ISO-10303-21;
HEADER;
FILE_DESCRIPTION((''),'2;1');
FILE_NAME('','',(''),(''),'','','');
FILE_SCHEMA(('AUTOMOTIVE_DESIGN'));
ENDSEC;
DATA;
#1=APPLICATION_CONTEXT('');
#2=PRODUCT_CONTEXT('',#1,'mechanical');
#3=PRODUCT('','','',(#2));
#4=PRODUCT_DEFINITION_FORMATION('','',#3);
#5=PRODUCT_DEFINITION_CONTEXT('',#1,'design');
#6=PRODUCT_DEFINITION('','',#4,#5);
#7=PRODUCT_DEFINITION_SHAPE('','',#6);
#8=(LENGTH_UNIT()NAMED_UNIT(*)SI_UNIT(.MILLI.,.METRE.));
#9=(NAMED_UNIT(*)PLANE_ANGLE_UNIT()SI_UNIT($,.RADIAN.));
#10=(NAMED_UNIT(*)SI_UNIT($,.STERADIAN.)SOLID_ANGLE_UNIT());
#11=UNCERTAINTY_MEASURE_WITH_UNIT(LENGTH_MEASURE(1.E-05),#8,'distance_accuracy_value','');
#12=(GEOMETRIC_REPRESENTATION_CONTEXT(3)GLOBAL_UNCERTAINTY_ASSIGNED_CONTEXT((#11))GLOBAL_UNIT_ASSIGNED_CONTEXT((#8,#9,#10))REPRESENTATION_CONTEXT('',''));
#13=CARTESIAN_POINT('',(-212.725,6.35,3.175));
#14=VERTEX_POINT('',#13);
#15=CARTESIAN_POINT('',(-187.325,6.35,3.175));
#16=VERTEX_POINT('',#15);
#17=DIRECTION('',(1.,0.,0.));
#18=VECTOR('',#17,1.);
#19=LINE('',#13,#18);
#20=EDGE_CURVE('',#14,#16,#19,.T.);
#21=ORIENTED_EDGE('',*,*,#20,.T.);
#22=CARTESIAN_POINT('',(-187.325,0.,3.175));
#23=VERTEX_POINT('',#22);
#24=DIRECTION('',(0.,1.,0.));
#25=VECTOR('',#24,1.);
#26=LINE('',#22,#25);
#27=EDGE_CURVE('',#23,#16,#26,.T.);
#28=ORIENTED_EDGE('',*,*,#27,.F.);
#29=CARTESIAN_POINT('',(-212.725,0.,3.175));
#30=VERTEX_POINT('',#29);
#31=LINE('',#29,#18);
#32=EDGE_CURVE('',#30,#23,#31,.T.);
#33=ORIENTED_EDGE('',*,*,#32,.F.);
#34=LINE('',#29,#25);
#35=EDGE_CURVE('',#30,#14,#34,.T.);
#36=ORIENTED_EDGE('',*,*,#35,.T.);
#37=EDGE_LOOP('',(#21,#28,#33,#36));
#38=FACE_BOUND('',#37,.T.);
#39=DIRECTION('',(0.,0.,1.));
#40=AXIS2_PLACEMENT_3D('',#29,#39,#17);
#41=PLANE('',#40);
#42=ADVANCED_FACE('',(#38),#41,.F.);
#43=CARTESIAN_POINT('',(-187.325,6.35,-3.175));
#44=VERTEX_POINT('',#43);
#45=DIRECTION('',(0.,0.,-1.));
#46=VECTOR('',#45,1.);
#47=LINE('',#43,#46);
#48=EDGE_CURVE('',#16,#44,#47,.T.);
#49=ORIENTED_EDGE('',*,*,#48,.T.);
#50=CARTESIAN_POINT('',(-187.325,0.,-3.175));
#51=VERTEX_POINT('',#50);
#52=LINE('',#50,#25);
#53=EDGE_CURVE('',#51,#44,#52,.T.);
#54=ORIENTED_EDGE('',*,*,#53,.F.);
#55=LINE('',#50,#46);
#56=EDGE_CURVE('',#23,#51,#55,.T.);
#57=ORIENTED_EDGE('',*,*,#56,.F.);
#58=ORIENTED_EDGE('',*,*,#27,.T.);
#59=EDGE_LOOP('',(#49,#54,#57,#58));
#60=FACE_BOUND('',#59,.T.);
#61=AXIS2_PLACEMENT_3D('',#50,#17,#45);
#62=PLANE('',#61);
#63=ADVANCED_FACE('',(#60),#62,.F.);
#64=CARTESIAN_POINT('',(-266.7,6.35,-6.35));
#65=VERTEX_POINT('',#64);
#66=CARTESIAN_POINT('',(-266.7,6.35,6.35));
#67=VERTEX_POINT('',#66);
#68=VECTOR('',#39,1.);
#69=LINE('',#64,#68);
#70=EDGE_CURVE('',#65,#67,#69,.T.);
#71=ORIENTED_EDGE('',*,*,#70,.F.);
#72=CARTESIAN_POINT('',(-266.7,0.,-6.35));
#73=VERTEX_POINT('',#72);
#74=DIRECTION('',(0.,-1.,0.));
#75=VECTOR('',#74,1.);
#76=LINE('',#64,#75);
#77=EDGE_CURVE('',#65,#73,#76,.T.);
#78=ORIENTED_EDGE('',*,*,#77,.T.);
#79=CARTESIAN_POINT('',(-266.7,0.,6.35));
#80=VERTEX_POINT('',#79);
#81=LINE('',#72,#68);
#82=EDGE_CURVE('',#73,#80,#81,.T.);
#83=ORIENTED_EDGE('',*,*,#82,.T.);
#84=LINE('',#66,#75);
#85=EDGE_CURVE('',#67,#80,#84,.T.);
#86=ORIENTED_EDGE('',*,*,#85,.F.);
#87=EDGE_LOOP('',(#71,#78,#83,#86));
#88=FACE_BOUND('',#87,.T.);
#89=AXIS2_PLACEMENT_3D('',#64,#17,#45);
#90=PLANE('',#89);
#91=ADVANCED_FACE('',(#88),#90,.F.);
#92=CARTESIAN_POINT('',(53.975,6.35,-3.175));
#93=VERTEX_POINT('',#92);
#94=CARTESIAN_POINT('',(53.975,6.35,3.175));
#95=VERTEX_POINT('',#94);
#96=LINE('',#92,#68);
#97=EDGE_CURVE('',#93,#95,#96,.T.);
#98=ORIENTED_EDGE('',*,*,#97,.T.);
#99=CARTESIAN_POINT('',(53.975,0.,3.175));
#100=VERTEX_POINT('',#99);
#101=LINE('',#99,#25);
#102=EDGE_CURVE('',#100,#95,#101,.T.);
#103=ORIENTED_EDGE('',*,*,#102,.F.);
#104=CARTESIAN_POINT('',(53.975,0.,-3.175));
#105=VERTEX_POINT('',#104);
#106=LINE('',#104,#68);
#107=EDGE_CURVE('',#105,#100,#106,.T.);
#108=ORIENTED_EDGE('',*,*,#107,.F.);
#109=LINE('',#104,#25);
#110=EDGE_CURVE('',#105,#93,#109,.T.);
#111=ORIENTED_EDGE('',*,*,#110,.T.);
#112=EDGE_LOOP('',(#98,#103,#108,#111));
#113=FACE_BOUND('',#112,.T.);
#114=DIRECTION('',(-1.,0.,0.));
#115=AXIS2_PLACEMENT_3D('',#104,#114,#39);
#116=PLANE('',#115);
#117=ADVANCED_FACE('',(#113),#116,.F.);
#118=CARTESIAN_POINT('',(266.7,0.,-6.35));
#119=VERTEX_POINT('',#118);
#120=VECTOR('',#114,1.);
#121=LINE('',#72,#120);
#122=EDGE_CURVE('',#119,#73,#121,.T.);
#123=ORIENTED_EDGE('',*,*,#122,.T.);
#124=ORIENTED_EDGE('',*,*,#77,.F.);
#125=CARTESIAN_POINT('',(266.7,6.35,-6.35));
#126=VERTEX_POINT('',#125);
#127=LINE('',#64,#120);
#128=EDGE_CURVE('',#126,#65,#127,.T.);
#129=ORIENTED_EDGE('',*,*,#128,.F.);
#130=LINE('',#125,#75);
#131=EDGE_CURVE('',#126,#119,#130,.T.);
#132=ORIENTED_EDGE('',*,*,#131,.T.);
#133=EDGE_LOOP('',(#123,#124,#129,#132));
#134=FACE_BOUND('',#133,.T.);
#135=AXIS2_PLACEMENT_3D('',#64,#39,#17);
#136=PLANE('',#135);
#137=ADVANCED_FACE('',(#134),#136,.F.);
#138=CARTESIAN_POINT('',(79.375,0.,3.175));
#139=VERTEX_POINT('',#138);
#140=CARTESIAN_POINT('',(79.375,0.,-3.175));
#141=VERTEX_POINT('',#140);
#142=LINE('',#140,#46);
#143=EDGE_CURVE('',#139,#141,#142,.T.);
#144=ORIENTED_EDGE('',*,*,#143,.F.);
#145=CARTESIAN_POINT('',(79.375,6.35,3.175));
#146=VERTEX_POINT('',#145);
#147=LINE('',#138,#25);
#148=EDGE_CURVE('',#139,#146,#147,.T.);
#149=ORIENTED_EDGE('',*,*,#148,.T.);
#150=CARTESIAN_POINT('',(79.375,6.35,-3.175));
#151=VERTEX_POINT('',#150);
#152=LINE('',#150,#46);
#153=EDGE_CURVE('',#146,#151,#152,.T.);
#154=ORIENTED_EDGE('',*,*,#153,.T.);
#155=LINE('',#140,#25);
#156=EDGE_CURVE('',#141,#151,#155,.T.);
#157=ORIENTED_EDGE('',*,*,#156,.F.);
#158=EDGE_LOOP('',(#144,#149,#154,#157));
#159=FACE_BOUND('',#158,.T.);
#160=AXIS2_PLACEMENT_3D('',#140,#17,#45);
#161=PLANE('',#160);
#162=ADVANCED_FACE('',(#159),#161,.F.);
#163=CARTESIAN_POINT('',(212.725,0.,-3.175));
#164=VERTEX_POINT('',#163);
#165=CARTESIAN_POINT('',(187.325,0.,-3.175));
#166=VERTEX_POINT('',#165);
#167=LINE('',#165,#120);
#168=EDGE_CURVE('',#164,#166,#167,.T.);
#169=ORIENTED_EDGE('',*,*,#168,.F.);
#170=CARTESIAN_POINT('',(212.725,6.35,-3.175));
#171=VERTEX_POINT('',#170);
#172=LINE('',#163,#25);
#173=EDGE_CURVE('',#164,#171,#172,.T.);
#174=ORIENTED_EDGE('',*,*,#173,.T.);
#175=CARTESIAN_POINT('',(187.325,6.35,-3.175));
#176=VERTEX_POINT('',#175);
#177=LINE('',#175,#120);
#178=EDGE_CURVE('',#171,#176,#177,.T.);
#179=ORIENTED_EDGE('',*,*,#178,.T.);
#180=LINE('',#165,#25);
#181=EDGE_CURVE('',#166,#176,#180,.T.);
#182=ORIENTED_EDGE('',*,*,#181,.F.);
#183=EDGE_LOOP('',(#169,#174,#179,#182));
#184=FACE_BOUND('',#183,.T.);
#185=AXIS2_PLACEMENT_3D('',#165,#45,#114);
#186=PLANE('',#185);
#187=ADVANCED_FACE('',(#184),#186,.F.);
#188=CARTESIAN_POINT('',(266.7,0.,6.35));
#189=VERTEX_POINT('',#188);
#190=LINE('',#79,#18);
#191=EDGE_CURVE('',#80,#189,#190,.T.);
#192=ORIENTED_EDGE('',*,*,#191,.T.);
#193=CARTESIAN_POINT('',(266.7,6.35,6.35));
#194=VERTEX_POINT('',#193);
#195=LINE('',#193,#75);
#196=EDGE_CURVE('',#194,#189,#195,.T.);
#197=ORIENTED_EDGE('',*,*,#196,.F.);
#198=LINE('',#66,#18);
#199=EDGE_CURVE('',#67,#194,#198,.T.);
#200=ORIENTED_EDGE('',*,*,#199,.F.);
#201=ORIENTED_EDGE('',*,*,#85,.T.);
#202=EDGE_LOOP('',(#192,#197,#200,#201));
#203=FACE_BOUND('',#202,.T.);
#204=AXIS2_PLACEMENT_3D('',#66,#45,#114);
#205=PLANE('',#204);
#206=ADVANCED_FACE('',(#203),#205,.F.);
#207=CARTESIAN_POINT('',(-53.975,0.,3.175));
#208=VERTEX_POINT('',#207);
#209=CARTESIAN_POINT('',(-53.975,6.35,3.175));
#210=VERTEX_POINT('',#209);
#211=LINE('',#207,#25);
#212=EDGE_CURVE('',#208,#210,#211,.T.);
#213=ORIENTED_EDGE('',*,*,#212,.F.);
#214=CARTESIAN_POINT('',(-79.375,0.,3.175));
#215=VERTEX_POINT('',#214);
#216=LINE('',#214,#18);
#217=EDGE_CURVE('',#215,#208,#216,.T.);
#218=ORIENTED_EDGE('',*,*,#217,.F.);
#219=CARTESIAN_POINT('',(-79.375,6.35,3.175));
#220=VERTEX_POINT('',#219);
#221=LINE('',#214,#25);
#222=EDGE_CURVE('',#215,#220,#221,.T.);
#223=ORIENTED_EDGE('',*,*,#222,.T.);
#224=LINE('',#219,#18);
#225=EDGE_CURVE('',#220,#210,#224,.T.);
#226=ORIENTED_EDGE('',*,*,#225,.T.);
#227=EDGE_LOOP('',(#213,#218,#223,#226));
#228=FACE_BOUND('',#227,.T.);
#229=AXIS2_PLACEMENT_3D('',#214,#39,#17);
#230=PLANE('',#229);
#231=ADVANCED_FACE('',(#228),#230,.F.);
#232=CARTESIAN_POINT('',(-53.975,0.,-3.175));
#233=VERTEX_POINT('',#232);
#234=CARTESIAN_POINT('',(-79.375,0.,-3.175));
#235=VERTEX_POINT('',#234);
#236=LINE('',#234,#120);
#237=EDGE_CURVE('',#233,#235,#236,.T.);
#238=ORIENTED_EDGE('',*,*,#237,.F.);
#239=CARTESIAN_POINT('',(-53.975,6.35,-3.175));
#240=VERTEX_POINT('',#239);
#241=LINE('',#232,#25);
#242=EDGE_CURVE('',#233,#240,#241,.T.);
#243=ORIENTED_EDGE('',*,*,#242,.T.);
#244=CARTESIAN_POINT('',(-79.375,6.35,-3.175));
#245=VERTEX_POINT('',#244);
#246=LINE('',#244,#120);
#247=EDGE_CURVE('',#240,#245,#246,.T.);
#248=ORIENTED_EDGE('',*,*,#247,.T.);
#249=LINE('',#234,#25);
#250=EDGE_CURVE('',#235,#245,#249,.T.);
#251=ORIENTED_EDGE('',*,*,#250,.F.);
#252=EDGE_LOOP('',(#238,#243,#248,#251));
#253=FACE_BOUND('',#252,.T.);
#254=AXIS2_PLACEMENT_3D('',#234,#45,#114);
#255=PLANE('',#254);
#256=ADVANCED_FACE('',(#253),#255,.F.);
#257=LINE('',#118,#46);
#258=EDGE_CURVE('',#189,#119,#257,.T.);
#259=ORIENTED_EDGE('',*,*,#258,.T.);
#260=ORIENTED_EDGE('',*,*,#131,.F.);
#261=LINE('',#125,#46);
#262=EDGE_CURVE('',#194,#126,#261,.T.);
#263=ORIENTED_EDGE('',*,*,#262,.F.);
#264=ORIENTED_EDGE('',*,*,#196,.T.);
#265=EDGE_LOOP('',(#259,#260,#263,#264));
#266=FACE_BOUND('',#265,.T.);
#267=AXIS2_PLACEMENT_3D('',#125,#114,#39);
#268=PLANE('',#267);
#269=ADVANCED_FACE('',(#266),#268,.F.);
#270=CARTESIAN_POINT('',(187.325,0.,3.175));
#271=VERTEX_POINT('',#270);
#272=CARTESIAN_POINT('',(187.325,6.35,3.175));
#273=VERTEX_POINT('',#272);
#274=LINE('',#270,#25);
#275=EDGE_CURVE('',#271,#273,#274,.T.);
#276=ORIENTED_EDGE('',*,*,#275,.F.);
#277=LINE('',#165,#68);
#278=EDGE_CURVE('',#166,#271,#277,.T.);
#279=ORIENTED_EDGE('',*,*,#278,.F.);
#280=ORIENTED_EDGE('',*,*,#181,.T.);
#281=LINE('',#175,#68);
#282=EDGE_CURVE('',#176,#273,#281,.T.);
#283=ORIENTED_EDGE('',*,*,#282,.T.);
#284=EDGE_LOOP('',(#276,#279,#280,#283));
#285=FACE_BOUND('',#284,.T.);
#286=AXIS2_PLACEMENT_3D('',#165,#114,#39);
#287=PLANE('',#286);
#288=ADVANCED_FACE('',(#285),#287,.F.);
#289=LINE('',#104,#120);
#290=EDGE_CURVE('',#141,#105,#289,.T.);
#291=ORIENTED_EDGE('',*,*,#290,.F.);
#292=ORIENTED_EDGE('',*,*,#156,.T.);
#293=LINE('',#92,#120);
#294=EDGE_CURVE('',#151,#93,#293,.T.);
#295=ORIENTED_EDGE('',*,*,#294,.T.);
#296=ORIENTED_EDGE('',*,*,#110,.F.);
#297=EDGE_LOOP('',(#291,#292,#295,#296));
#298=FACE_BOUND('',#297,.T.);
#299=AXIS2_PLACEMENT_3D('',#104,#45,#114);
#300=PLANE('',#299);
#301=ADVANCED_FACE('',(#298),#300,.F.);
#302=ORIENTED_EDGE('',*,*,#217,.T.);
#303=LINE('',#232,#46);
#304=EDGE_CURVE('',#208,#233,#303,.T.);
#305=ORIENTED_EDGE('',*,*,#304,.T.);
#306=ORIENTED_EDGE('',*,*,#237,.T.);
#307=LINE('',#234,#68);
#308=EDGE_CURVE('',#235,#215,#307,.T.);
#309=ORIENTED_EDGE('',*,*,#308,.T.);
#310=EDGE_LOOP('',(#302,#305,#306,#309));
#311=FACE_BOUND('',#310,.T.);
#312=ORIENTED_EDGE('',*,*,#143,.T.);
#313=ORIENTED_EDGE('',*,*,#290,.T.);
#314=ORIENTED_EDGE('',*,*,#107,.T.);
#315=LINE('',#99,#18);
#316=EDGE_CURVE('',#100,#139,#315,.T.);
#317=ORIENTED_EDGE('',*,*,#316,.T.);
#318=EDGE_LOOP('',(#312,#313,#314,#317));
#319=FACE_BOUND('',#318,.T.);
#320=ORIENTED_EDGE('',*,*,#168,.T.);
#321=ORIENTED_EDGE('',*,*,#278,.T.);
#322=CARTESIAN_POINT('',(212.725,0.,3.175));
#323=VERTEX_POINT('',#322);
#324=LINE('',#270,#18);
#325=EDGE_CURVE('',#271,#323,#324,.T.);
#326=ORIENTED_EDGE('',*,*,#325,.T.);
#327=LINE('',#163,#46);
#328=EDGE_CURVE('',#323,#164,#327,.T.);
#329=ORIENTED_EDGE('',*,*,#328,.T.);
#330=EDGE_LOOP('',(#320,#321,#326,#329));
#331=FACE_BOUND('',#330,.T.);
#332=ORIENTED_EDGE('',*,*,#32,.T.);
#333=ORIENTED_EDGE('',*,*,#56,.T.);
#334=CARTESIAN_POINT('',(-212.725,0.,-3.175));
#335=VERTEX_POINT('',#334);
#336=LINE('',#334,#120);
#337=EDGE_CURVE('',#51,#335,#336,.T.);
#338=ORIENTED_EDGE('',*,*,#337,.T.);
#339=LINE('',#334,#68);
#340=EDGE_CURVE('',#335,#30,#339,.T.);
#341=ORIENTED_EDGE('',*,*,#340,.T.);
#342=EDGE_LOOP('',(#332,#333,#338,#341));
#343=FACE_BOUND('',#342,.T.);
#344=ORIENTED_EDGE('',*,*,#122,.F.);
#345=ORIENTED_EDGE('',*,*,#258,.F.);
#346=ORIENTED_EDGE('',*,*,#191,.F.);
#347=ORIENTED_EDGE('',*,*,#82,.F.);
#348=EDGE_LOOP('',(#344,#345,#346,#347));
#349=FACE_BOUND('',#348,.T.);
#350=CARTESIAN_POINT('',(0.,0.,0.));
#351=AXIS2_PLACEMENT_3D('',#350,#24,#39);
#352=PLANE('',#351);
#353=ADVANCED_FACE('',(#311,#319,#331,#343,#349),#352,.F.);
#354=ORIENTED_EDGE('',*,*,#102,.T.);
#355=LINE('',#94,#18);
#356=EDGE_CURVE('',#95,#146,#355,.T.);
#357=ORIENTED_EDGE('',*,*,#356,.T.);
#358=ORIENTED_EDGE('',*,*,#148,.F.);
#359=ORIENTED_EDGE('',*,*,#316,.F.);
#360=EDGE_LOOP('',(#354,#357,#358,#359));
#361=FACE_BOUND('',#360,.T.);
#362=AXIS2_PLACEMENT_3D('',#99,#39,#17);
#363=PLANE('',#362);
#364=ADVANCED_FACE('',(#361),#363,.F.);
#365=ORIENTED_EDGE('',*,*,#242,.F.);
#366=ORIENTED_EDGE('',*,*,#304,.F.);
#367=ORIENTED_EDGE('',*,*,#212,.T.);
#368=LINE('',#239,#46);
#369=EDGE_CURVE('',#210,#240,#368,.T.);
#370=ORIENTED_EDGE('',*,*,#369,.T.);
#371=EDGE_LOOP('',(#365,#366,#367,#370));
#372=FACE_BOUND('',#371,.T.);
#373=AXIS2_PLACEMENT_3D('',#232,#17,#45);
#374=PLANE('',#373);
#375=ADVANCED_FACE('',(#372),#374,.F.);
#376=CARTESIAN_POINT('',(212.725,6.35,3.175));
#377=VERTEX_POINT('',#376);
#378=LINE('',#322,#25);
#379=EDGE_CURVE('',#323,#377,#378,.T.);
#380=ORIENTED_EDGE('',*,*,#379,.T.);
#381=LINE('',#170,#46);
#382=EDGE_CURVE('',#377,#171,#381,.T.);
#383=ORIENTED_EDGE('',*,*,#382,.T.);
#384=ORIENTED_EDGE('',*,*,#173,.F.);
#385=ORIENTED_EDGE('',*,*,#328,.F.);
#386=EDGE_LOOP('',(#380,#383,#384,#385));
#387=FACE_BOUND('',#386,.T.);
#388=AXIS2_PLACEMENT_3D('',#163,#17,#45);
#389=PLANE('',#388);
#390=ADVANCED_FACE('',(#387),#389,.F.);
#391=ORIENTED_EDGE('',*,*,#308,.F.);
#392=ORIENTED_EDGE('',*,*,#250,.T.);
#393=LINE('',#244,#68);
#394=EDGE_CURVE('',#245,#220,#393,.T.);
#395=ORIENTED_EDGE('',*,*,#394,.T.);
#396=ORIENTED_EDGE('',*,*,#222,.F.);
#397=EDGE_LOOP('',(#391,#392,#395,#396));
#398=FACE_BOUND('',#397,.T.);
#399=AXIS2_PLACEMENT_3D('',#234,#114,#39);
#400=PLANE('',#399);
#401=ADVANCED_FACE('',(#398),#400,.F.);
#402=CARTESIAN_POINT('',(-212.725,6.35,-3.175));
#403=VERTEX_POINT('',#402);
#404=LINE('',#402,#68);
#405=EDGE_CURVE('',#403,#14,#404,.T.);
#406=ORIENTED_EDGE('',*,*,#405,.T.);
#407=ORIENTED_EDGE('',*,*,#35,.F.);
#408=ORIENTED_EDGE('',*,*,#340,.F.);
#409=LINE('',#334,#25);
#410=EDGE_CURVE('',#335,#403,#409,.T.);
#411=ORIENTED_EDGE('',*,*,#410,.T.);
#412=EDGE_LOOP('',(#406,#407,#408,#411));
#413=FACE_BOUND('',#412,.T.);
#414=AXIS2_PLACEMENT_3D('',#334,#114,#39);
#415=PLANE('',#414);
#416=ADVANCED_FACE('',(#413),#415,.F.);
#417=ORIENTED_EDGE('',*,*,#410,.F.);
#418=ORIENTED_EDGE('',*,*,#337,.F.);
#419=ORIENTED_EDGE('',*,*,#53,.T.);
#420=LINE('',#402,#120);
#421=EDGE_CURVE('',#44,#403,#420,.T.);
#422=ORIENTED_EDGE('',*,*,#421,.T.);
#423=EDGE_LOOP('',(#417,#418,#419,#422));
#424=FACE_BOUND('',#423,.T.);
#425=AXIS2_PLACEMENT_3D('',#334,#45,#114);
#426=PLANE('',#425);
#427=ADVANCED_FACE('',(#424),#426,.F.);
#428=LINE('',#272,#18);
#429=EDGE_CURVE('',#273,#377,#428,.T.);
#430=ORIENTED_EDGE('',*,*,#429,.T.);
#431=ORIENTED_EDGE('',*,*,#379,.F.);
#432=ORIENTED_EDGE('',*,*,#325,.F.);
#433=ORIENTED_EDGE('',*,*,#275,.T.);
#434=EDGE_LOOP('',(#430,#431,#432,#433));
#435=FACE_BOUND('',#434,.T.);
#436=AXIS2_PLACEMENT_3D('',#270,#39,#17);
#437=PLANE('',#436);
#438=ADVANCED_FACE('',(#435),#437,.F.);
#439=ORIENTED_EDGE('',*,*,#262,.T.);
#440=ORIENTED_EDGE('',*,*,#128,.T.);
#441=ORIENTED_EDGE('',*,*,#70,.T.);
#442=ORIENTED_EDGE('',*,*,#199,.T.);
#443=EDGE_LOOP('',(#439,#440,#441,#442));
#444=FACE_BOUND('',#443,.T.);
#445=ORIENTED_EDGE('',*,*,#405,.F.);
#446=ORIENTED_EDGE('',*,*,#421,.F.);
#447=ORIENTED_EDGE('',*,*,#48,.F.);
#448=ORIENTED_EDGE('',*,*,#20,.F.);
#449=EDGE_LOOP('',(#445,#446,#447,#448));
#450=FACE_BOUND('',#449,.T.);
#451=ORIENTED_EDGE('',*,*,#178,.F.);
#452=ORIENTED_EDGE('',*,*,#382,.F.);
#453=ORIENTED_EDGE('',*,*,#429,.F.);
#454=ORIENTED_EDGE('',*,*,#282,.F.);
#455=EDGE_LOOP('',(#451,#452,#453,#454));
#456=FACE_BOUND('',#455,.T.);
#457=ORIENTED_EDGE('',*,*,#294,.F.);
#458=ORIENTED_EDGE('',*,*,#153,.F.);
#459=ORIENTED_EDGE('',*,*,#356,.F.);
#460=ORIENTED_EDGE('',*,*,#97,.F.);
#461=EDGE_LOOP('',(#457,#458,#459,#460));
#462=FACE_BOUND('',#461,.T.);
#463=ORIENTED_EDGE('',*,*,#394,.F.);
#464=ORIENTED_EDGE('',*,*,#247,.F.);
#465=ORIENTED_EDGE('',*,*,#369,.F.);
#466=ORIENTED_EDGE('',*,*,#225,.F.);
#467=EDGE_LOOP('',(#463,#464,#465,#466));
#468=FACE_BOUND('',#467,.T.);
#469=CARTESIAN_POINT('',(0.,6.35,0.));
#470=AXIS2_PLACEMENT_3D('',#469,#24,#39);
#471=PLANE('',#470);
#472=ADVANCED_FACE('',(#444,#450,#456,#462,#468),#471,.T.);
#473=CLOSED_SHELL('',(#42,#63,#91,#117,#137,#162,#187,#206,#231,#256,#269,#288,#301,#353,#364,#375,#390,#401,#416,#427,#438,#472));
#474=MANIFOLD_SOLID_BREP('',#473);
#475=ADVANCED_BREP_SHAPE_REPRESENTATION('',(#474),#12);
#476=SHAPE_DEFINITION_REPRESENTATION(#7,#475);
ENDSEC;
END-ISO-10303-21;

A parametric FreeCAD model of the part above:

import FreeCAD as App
import Part
import Sketcher
from FreeCAD import Vector
Q = App.Units.Quantity


def add_polygon(sketch, points):
    """Adds a closed chain of lines whose ends are joined by coincident constraints."""
    first, n = sketch.GeometryCount, len(points)
    for a, b in zip(points, points[1:] + points[:1]):
        sketch.addGeometry(Part.LineSegment(App.Vector(*a, 0), App.Vector(*b, 0)), False)
    for i in range(n):
        sketch.addConstraint(Sketcher.Constraint("Coincident", first + i, 2, first + (i + 1) % n, 1))

doc = App.newDocument("Part")
body = doc.addObject("PartDesign::Body", "Body")

sketch1 = body.newObject("Sketcher::SketchObject", "Sketch")
sketch1.AttachmentSupport = (doc.getObject("XZ_Plane"), [""])
sketch1.MapMode = "FlatFace"
add_polygon(sketch1, [(-267, -6), (-267, 6), (267, 6), (267, -6)])
sketch1.addConstraint(Sketcher.Constraint("Vertical", 0))
sketch1.addConstraint(Sketcher.Constraint("Horizontal", 1))
sketch1.addConstraint(Sketcher.Constraint("Vertical", 2))
sketch1.addConstraint(Sketcher.Constraint("Horizontal", 3))
sketch1.addConstraint(Sketcher.Constraint("Symmetric", 0, 2, 2, 2, -1, 1))
sketch1.addConstraint(Sketcher.Constraint("DistanceX", 1, 1, 1, 2, Q("21 in")))
sketch1.addConstraint(Sketcher.Constraint("DistanceY", 0, 1, 0, 2, Q("0.5 in")))
pad1 = body.newObject("PartDesign::Pad", "Pad")
pad1.Profile = sketch1
pad1.Length = Q("0.25 in")
pad1.Reversed = True

sketch2 = body.newObject("Sketcher::SketchObject", "Sketch001")
sketch2.AttachmentSupport = (doc.getObject("XZ_Plane"), [""])
sketch2.MapMode = "FlatFace"
sketch2.AttachmentOffset = App.Placement(Vector(0, 0, -0.25 * 25.4), App.Rotation())
add_polygon(sketch2, [(-213, -3), (-213, 3), (-187, 3), (-187, -3)])
sketch2.addConstraint(Sketcher.Constraint("Vertical", 0))
sketch2.addConstraint(Sketcher.Constraint("Horizontal", 1))
sketch2.addConstraint(Sketcher.Constraint("Vertical", 2))
sketch2.addConstraint(Sketcher.Constraint("Horizontal", 3))
sketch2.addConstraint(Sketcher.Constraint("DistanceX", 1, 1, 1, 2, Q("1 in")))
sketch2.addConstraint(Sketcher.Constraint("DistanceY", 0, 1, 0, 2, Q("0.25 in")))
sketch2.addConstraint(Sketcher.Constraint("DistanceX", 0, 2, -1, 1, Q("8.375 in")))
sketch2.addConstraint(Sketcher.Constraint("DistanceY", -1, 1, 0, 2, Q("0.125 in")))
pocket1 = body.newObject("PartDesign::Pocket", "Pocket")
pocket1.Profile = sketch2
pocket1.Type = "ThroughAll"
pocket1.Reversed = True
doc.recompute()

linearpattern = body.newObject("PartDesign::LinearPattern", "LinearPattern")
linearpattern.Originals = [pocket1]
linearpattern.Direction = (doc.getObject("X_Axis"), [""])
linearpattern.Mode = "offset"
linearpattern.Offset = Q("5.25 in")
linearpattern.Occurrences = 4
body.Tip = linearpattern

doc.recompute()
